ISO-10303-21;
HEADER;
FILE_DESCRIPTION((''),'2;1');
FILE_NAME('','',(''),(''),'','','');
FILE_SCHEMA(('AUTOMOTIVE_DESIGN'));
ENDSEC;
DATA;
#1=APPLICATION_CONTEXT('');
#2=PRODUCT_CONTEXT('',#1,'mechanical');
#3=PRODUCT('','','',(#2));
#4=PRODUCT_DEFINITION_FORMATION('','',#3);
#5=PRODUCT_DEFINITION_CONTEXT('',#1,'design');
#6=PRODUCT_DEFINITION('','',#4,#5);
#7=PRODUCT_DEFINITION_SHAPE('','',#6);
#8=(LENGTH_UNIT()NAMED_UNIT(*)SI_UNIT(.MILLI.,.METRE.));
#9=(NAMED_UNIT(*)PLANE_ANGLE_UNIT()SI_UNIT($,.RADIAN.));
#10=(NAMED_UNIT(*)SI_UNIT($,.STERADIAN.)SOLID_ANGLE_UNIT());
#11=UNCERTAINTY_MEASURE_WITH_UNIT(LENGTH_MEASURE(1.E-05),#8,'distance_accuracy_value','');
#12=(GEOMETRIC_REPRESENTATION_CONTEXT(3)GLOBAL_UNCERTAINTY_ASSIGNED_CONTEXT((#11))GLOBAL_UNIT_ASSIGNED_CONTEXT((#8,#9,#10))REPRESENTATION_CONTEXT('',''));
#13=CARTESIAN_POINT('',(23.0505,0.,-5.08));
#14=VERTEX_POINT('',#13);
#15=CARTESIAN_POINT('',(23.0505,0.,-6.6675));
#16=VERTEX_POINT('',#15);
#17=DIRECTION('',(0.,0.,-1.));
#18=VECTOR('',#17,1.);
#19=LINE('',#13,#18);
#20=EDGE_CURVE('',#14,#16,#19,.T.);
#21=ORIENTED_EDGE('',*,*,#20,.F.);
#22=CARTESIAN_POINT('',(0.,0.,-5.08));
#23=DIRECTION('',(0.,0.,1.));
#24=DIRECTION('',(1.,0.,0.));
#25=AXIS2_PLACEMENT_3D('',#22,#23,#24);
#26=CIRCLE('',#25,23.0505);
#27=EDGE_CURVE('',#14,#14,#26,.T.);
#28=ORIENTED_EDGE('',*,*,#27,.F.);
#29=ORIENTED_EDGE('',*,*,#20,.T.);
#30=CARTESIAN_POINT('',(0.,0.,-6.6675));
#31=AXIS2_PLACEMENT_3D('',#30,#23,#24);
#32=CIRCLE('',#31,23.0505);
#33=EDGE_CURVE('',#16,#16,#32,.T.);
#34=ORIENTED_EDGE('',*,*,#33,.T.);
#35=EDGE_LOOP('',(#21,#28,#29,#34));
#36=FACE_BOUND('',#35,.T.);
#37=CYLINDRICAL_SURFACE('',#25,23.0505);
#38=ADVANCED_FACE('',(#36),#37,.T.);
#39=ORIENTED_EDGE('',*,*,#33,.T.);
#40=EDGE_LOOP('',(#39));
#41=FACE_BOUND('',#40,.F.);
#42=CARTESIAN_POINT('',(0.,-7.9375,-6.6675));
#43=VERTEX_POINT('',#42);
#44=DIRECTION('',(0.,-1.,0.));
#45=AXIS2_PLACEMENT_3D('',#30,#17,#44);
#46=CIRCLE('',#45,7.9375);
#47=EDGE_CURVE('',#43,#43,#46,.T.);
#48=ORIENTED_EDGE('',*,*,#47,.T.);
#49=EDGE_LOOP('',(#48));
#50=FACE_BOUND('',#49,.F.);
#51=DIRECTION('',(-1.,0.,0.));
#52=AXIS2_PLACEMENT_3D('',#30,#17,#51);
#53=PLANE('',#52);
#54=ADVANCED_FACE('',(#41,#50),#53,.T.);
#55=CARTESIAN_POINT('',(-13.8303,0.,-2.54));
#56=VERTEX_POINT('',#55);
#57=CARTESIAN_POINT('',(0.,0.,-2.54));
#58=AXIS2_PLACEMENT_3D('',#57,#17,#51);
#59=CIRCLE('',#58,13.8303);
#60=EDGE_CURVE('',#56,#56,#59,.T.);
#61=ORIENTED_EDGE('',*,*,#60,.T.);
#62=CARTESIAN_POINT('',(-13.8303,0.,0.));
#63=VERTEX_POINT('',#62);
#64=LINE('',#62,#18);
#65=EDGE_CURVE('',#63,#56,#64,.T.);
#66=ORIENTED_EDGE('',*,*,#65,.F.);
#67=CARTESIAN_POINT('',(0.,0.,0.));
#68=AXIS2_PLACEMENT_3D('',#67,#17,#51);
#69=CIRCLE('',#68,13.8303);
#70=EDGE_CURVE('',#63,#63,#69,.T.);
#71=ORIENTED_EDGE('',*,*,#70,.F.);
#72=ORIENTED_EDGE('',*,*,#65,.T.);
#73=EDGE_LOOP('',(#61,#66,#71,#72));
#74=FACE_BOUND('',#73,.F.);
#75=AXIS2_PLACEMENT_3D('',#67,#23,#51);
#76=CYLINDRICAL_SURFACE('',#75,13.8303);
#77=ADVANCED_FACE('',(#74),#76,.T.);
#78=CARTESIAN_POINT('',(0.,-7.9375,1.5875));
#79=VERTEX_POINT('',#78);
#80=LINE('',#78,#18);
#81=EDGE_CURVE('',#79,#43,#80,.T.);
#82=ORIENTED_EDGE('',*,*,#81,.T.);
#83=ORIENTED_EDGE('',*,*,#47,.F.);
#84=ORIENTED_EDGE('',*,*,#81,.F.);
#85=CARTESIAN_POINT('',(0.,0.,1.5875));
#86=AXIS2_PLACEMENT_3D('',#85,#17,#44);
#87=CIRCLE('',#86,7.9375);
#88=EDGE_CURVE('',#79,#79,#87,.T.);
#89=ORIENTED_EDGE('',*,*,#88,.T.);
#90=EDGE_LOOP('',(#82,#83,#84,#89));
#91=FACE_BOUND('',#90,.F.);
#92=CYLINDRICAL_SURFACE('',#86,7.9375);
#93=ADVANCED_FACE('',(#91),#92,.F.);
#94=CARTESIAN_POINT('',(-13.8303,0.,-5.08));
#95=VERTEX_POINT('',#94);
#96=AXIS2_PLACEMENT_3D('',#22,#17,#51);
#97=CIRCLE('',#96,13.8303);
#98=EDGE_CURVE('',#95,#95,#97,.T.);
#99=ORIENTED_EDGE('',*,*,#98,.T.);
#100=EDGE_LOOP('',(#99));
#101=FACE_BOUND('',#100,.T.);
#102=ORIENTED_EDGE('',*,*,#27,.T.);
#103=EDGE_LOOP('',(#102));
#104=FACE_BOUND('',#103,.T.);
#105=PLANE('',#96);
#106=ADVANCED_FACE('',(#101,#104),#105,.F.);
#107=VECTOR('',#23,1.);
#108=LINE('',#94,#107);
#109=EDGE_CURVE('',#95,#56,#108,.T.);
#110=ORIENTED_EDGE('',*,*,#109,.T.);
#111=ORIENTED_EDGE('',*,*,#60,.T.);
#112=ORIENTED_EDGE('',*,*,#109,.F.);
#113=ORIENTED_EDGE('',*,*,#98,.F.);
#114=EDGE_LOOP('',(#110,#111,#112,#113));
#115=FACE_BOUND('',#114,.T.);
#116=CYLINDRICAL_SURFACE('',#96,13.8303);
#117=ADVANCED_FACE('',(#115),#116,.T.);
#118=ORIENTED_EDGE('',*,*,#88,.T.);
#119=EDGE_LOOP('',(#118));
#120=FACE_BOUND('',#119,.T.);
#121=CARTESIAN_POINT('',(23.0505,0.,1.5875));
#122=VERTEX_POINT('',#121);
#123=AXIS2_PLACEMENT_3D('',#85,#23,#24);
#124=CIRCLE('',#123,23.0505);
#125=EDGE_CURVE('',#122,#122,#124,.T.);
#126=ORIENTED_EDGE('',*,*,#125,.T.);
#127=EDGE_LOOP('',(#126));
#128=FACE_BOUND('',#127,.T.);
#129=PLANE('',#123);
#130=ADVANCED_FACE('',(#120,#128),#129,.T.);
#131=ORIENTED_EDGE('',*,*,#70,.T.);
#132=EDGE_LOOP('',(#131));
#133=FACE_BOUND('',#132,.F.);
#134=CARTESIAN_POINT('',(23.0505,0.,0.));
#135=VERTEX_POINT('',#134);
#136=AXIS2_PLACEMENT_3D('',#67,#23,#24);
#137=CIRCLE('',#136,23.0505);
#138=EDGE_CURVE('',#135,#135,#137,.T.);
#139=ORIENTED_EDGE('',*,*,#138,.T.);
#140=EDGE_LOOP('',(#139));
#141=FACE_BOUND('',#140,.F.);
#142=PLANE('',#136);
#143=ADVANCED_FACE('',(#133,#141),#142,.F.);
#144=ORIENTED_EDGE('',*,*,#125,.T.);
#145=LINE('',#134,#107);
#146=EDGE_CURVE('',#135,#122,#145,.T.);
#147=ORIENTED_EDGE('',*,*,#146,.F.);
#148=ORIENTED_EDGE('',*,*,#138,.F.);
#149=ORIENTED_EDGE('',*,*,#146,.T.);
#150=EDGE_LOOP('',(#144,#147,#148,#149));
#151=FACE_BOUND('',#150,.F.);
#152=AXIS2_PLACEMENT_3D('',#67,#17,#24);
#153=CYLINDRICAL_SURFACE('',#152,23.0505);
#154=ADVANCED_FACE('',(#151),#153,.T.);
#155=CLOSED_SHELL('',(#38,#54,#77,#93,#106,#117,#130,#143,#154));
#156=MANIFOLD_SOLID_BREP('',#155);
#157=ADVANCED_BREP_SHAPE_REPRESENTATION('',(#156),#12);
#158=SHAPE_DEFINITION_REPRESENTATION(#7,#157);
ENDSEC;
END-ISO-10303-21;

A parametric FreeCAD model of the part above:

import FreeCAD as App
import Part
import Sketcher

V = App.Vector
Q = App.Units.Quantity

doc = App.newDocument("Part")
body = doc.addObject("PartDesign::Body", "Body")

# Sketch on XY plane
sketch1 = doc.addObject("Sketcher::SketchObject", "Sketch")
body.addObject(sketch1)
sketch1.AttachmentSupport = (doc.XY_Plane, [""])
sketch1.MapMode = "FlatFace"
sketch1.addGeometry(Part.Circle(V(0, 0, 0), V(0, 0, 1), 23), False)
sketch1.addConstraint(Sketcher.Constraint("Coincident", 0, 3, -1, 1))
sketch1.addConstraint(Sketcher.Constraint("Diameter", 0, Q("1.815 in")))
pad1 = doc.addObject("PartDesign::Pad", "Pad")
body.addObject(pad1)
pad1.Profile = sketch1
pad1.Length = Q("0.0625 in")

# Sketch on XY plane
sketch2 = doc.addObject("Sketcher::SketchObject", "Sketch001")
body.addObject(sketch2)
sketch2.AttachmentSupport = (doc.XY_Plane, [""])
sketch2.MapMode = "FlatFace"
sketch2.addGeometry(Part.Circle(V(0, 0, 0), V(0, 0, 1), 14), False)
sketch2.addConstraint(Sketcher.Constraint("Coincident", 0, 3, -1, 1))
sketch2.addConstraint(Sketcher.Constraint("Diameter", 0, Q("1.089 in")))
pad2 = doc.addObject("PartDesign::Pad", "Pad001")
body.addObject(pad2)
pad2.Profile = sketch2
pad2.Length = Q("0.1 in")
pad2.Reversed = True
doc.recompute()

datumplane = doc.addObject("PartDesign::Plane", "DatumPlane")
body.addObject(datumplane)
datumplane.AttachmentSupport = (doc.XY_Plane, [""])
datumplane.MapMode = "FlatFace"
datumplane.AttachmentOffset = App.Placement(V(0, 0, -0.1 * 25.4), App.Rotation())
mirrored = doc.addObject("PartDesign::Mirrored", "Mirrored")
body.addObject(mirrored)
mirrored.Originals = [pad1, pad2]
mirrored.MirrorPlane = (datumplane, [""])
body.Tip = mirrored

# Sketch on XY plane
sketch3 = doc.addObject("Sketcher::SketchObject", "Sketch002")
body.addObject(sketch3)
sketch3.AttachmentSupport = (doc.XY_Plane, [""])
sketch3.MapMode = "FlatFace"
sketch3.AttachmentOffset = App.Placement(V(0, 0, 0.0625 * 25.4), App.Rotation())
sketch3.addGeometry(Part.Circle(V(0, 0, 0), V(0, 0, 1), 8), False)
sketch3.addConstraint(Sketcher.Constraint("Coincident", 0, 3, -1, 1))
sketch3.addConstraint(Sketcher.Constraint("Diameter", 0, Q("0.625 in")))
doc.recompute()
hole = doc.addObject("PartDesign::Hole", "Hole")
body.addObject(hole)
hole.Profile = sketch3
hole.ThreadType = "None"
hole.Diameter = Q("0.625 in")
hole.DepthType = "ThroughAll"

doc.recompute()
